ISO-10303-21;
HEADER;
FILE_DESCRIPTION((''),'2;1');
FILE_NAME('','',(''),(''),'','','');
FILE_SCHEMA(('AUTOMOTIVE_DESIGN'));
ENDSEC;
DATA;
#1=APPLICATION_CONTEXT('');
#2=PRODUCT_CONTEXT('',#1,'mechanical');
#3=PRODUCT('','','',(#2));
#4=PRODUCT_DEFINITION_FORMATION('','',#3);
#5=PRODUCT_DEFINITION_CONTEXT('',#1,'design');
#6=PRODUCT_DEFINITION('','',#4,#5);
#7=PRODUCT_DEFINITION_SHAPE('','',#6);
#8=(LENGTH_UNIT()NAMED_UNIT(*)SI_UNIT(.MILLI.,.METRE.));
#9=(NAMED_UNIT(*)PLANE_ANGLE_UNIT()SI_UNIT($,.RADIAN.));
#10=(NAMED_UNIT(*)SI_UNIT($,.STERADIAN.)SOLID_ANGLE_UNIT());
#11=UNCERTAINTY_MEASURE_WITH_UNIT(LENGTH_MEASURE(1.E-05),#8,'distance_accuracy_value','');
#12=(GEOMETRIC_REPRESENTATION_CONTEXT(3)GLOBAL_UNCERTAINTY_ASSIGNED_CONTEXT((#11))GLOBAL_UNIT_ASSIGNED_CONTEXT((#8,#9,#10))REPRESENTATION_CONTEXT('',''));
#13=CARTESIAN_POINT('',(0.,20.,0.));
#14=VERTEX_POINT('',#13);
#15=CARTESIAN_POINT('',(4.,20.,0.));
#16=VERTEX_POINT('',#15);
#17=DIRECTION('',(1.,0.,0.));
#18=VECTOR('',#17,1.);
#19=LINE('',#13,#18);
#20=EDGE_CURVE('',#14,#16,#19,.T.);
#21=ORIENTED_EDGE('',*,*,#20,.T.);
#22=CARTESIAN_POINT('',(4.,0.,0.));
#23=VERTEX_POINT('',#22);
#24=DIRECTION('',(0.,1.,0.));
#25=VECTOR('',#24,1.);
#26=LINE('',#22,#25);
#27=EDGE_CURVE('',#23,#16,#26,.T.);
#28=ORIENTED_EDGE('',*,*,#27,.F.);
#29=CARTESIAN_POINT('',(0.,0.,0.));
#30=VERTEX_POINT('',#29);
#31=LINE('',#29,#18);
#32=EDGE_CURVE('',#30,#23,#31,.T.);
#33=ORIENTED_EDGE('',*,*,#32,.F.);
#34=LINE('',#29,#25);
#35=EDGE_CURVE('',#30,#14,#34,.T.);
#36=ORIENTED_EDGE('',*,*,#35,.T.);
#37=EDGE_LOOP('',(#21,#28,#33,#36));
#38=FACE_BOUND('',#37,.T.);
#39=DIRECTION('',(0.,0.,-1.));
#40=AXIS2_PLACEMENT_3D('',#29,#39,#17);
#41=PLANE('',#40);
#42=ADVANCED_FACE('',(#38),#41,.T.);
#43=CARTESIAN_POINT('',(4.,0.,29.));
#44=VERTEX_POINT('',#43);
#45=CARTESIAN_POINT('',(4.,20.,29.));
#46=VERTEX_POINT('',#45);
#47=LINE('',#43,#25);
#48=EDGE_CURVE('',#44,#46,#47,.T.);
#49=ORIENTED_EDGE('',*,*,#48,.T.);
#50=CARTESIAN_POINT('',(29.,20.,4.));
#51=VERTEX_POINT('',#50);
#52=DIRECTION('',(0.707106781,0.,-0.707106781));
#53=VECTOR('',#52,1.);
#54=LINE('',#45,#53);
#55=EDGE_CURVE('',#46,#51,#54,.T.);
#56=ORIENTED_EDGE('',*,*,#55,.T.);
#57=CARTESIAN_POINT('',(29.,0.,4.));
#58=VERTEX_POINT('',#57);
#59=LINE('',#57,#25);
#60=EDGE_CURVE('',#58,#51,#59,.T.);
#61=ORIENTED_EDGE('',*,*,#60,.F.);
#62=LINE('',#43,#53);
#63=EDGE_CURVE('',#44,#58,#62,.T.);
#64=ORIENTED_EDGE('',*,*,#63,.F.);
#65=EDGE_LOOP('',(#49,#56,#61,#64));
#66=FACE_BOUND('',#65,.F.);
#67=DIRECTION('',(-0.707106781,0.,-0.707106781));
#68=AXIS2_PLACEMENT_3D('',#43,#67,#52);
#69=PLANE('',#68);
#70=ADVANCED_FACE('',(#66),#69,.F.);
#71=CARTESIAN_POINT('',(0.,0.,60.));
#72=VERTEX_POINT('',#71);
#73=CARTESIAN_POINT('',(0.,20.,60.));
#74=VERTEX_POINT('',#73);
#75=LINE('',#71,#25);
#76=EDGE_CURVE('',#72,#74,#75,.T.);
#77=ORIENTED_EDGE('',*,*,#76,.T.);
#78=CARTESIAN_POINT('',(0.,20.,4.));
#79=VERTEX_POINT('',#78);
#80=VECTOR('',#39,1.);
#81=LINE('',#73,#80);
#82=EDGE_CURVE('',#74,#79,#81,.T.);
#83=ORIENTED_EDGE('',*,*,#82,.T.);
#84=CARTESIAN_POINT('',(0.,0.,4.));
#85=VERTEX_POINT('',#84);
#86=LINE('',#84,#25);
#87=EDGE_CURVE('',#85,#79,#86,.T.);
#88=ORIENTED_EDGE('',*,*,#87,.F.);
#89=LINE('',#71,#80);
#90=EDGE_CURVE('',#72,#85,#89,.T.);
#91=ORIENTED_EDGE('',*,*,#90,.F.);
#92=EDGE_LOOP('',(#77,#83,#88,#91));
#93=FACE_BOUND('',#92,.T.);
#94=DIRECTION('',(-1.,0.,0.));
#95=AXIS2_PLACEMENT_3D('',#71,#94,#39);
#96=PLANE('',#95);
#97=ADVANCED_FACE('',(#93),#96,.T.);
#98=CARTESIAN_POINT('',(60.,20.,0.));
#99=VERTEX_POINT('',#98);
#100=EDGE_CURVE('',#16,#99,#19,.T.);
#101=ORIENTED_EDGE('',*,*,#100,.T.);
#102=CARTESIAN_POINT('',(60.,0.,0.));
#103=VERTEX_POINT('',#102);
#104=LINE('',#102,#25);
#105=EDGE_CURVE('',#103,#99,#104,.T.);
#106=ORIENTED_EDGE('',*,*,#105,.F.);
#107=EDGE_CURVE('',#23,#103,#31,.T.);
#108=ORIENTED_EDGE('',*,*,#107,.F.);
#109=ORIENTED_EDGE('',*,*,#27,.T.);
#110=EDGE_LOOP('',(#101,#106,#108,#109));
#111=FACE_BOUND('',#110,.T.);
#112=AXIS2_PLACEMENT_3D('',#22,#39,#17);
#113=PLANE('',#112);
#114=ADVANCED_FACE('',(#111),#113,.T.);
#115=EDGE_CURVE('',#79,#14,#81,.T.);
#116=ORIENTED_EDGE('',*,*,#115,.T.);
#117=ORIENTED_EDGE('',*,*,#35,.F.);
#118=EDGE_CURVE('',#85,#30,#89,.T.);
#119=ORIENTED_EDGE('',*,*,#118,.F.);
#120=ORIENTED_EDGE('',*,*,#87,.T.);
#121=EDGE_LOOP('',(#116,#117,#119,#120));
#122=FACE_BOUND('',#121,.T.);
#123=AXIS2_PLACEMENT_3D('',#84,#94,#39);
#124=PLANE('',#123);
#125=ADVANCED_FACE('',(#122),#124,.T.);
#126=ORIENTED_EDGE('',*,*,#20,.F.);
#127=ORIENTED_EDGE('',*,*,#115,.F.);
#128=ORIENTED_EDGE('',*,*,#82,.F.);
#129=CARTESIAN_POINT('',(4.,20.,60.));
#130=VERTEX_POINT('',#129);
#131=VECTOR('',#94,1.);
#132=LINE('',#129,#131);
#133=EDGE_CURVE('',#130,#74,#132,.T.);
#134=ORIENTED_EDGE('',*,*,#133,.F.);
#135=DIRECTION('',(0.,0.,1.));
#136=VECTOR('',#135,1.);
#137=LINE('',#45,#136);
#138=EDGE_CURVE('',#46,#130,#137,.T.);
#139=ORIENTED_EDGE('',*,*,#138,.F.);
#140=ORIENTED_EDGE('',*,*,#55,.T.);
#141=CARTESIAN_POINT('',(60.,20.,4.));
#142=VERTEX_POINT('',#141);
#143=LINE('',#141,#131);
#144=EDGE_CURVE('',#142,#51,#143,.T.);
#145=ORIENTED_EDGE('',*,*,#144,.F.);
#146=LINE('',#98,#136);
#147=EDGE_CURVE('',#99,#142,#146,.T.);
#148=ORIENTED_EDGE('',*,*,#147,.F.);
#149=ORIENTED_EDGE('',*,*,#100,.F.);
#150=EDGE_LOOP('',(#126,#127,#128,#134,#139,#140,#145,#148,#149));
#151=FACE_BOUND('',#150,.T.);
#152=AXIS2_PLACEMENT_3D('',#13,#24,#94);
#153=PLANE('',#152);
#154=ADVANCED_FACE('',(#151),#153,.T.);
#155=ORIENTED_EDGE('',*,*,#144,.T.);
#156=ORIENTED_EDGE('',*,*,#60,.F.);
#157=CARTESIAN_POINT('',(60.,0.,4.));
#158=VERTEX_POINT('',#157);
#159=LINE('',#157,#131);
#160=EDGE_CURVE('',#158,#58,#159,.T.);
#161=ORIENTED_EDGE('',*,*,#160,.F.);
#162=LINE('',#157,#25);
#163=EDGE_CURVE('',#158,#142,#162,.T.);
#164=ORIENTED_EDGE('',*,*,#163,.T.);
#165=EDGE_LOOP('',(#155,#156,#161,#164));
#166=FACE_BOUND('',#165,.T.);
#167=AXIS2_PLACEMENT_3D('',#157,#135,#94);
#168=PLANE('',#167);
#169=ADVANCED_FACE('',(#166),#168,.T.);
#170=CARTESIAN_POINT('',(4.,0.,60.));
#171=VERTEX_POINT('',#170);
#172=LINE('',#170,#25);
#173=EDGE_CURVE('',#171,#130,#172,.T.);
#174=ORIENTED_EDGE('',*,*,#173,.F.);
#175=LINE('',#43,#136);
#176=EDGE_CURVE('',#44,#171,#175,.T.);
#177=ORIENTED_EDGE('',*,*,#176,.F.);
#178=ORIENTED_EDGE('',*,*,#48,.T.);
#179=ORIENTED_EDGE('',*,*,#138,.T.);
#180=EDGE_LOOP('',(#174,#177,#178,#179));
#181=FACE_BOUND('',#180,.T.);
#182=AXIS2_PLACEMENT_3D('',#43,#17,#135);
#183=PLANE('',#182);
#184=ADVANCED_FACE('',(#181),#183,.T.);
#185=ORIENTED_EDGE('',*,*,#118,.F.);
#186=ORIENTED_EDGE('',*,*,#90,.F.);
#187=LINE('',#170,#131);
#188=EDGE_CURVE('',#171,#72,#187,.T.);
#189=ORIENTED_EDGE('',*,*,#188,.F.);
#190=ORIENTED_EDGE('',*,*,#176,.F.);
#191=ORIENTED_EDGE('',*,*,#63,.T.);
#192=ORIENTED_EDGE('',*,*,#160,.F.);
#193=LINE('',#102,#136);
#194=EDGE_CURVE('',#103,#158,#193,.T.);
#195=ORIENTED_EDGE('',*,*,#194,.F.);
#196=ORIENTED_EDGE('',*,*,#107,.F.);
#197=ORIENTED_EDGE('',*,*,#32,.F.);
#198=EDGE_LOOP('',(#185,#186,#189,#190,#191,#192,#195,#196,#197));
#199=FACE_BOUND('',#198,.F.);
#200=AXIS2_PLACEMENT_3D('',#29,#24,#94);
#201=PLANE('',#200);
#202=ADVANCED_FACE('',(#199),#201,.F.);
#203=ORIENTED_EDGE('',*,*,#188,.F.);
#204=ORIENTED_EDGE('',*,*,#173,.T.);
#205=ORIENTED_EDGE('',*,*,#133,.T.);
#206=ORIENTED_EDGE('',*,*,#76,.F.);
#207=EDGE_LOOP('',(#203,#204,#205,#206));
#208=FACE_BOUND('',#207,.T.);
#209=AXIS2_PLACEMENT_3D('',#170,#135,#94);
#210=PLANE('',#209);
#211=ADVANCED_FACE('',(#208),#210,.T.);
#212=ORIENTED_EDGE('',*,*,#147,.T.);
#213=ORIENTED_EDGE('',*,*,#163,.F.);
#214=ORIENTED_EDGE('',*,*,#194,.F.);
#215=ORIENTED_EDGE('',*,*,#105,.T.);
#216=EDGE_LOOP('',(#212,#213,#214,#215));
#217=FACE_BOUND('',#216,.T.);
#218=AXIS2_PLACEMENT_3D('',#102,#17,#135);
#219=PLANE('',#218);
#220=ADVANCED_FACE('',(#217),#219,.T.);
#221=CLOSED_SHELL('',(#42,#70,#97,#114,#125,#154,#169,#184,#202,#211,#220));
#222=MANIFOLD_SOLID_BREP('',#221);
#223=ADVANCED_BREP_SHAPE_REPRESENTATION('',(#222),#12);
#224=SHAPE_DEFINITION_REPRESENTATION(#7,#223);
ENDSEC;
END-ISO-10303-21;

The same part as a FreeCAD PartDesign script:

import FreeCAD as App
import Part
import Sketcher

V = App.Vector
Q = App.Units.Quantity

doc = App.newDocument("Part")
params = doc.addObject("Spreadsheet::Sheet", "Params")
for row, (alias, value) in enumerate([
    ("sketch1_width", "60 mm"),
    ("sketch1_width2", "4 mm"),
    ("pad1_length", "20 mm"),
], start=1):
    params.set(f"A{row}", alias)
    params.set(f"B{row}", "=" + value)
    params.setAlias(f"B{row}", alias)

body = doc.addObject("PartDesign::Body", "Body")

sketch1 = body.newObject("Sketcher::SketchObject", "Sketch")
sketch1.AttachmentSupport = (doc.getObject("XZ_Plane"), [""])
sketch1.MapMode = "FlatFace"
sketch1.addGeometry([
    Part.LineSegment(V(60, 0, 0), V(0, 0, 0)),
    Part.LineSegment(V(0, 0, 0), V(0, 60, 0)),
    Part.LineSegment(V(0, 60, 0), V(4, 60, 0)),
    Part.LineSegment(V(4, 60, 0), V(4, 29, 0)),
    Part.LineSegment(V(4, 29, 0), V(29, 4, 0)),
    Part.LineSegment(V(29, 4, 0), V(60, 4, 0)),
    Part.LineSegment(V(60, 4, 0), V(60, 0, 0)),
], False)
sketch1.addConstraint([
    Sketcher.Constraint("Coincident", 0, 2, 1, 1),
    Sketcher.Constraint("Coincident", 1, 2, 2, 1),
    Sketcher.Constraint("Coincident", 2, 2, 3, 1),
    Sketcher.Constraint("Coincident", 3, 2, 4, 1),
    Sketcher.Constraint("Coincident", 4, 2, 5, 1),
    Sketcher.Constraint("Coincident", 5, 2, 6, 1),
    Sketcher.Constraint("Coincident", 6, 2, 0, 1),
    Sketcher.Constraint("Horizontal", 0),
    Sketcher.Constraint("Vertical", 1),
    Sketcher.Constraint("Horizontal", 2),
    Sketcher.Constraint("Vertical", 3),
    Sketcher.Constraint("Horizontal", 5),
    Sketcher.Constraint("Vertical", 6),
    Sketcher.Constraint("Coincident", 0, 2, -1, 1),
    Sketcher.Constraint("Equal", 0, 1),
    Sketcher.Constraint("Equal", 5, 3),
    Sketcher.Constraint("Equal", 2, 6),
    Sketcher.Constraint("DistanceX", 0, 2, 0, 1, Q("60 mm")),
    Sketcher.Constraint("DistanceX", 2, 1, 2, 2, Q("4 mm")),
    Sketcher.Constraint("DistanceX", 3, 2, 4, 2, Q("25 mm")),
])
sketch1.setExpression("Constraints[17]", "Params.sketch1_width")
sketch1.setExpression("Constraints[18]", "Params.sketch1_width2")
pad1 = body.newObject("PartDesign::Pad", "Pad")
pad1.Profile = sketch1
pad1.setExpression("Length", "Params.pad1_length")
pad1.Reversed = True

doc.recompute()
